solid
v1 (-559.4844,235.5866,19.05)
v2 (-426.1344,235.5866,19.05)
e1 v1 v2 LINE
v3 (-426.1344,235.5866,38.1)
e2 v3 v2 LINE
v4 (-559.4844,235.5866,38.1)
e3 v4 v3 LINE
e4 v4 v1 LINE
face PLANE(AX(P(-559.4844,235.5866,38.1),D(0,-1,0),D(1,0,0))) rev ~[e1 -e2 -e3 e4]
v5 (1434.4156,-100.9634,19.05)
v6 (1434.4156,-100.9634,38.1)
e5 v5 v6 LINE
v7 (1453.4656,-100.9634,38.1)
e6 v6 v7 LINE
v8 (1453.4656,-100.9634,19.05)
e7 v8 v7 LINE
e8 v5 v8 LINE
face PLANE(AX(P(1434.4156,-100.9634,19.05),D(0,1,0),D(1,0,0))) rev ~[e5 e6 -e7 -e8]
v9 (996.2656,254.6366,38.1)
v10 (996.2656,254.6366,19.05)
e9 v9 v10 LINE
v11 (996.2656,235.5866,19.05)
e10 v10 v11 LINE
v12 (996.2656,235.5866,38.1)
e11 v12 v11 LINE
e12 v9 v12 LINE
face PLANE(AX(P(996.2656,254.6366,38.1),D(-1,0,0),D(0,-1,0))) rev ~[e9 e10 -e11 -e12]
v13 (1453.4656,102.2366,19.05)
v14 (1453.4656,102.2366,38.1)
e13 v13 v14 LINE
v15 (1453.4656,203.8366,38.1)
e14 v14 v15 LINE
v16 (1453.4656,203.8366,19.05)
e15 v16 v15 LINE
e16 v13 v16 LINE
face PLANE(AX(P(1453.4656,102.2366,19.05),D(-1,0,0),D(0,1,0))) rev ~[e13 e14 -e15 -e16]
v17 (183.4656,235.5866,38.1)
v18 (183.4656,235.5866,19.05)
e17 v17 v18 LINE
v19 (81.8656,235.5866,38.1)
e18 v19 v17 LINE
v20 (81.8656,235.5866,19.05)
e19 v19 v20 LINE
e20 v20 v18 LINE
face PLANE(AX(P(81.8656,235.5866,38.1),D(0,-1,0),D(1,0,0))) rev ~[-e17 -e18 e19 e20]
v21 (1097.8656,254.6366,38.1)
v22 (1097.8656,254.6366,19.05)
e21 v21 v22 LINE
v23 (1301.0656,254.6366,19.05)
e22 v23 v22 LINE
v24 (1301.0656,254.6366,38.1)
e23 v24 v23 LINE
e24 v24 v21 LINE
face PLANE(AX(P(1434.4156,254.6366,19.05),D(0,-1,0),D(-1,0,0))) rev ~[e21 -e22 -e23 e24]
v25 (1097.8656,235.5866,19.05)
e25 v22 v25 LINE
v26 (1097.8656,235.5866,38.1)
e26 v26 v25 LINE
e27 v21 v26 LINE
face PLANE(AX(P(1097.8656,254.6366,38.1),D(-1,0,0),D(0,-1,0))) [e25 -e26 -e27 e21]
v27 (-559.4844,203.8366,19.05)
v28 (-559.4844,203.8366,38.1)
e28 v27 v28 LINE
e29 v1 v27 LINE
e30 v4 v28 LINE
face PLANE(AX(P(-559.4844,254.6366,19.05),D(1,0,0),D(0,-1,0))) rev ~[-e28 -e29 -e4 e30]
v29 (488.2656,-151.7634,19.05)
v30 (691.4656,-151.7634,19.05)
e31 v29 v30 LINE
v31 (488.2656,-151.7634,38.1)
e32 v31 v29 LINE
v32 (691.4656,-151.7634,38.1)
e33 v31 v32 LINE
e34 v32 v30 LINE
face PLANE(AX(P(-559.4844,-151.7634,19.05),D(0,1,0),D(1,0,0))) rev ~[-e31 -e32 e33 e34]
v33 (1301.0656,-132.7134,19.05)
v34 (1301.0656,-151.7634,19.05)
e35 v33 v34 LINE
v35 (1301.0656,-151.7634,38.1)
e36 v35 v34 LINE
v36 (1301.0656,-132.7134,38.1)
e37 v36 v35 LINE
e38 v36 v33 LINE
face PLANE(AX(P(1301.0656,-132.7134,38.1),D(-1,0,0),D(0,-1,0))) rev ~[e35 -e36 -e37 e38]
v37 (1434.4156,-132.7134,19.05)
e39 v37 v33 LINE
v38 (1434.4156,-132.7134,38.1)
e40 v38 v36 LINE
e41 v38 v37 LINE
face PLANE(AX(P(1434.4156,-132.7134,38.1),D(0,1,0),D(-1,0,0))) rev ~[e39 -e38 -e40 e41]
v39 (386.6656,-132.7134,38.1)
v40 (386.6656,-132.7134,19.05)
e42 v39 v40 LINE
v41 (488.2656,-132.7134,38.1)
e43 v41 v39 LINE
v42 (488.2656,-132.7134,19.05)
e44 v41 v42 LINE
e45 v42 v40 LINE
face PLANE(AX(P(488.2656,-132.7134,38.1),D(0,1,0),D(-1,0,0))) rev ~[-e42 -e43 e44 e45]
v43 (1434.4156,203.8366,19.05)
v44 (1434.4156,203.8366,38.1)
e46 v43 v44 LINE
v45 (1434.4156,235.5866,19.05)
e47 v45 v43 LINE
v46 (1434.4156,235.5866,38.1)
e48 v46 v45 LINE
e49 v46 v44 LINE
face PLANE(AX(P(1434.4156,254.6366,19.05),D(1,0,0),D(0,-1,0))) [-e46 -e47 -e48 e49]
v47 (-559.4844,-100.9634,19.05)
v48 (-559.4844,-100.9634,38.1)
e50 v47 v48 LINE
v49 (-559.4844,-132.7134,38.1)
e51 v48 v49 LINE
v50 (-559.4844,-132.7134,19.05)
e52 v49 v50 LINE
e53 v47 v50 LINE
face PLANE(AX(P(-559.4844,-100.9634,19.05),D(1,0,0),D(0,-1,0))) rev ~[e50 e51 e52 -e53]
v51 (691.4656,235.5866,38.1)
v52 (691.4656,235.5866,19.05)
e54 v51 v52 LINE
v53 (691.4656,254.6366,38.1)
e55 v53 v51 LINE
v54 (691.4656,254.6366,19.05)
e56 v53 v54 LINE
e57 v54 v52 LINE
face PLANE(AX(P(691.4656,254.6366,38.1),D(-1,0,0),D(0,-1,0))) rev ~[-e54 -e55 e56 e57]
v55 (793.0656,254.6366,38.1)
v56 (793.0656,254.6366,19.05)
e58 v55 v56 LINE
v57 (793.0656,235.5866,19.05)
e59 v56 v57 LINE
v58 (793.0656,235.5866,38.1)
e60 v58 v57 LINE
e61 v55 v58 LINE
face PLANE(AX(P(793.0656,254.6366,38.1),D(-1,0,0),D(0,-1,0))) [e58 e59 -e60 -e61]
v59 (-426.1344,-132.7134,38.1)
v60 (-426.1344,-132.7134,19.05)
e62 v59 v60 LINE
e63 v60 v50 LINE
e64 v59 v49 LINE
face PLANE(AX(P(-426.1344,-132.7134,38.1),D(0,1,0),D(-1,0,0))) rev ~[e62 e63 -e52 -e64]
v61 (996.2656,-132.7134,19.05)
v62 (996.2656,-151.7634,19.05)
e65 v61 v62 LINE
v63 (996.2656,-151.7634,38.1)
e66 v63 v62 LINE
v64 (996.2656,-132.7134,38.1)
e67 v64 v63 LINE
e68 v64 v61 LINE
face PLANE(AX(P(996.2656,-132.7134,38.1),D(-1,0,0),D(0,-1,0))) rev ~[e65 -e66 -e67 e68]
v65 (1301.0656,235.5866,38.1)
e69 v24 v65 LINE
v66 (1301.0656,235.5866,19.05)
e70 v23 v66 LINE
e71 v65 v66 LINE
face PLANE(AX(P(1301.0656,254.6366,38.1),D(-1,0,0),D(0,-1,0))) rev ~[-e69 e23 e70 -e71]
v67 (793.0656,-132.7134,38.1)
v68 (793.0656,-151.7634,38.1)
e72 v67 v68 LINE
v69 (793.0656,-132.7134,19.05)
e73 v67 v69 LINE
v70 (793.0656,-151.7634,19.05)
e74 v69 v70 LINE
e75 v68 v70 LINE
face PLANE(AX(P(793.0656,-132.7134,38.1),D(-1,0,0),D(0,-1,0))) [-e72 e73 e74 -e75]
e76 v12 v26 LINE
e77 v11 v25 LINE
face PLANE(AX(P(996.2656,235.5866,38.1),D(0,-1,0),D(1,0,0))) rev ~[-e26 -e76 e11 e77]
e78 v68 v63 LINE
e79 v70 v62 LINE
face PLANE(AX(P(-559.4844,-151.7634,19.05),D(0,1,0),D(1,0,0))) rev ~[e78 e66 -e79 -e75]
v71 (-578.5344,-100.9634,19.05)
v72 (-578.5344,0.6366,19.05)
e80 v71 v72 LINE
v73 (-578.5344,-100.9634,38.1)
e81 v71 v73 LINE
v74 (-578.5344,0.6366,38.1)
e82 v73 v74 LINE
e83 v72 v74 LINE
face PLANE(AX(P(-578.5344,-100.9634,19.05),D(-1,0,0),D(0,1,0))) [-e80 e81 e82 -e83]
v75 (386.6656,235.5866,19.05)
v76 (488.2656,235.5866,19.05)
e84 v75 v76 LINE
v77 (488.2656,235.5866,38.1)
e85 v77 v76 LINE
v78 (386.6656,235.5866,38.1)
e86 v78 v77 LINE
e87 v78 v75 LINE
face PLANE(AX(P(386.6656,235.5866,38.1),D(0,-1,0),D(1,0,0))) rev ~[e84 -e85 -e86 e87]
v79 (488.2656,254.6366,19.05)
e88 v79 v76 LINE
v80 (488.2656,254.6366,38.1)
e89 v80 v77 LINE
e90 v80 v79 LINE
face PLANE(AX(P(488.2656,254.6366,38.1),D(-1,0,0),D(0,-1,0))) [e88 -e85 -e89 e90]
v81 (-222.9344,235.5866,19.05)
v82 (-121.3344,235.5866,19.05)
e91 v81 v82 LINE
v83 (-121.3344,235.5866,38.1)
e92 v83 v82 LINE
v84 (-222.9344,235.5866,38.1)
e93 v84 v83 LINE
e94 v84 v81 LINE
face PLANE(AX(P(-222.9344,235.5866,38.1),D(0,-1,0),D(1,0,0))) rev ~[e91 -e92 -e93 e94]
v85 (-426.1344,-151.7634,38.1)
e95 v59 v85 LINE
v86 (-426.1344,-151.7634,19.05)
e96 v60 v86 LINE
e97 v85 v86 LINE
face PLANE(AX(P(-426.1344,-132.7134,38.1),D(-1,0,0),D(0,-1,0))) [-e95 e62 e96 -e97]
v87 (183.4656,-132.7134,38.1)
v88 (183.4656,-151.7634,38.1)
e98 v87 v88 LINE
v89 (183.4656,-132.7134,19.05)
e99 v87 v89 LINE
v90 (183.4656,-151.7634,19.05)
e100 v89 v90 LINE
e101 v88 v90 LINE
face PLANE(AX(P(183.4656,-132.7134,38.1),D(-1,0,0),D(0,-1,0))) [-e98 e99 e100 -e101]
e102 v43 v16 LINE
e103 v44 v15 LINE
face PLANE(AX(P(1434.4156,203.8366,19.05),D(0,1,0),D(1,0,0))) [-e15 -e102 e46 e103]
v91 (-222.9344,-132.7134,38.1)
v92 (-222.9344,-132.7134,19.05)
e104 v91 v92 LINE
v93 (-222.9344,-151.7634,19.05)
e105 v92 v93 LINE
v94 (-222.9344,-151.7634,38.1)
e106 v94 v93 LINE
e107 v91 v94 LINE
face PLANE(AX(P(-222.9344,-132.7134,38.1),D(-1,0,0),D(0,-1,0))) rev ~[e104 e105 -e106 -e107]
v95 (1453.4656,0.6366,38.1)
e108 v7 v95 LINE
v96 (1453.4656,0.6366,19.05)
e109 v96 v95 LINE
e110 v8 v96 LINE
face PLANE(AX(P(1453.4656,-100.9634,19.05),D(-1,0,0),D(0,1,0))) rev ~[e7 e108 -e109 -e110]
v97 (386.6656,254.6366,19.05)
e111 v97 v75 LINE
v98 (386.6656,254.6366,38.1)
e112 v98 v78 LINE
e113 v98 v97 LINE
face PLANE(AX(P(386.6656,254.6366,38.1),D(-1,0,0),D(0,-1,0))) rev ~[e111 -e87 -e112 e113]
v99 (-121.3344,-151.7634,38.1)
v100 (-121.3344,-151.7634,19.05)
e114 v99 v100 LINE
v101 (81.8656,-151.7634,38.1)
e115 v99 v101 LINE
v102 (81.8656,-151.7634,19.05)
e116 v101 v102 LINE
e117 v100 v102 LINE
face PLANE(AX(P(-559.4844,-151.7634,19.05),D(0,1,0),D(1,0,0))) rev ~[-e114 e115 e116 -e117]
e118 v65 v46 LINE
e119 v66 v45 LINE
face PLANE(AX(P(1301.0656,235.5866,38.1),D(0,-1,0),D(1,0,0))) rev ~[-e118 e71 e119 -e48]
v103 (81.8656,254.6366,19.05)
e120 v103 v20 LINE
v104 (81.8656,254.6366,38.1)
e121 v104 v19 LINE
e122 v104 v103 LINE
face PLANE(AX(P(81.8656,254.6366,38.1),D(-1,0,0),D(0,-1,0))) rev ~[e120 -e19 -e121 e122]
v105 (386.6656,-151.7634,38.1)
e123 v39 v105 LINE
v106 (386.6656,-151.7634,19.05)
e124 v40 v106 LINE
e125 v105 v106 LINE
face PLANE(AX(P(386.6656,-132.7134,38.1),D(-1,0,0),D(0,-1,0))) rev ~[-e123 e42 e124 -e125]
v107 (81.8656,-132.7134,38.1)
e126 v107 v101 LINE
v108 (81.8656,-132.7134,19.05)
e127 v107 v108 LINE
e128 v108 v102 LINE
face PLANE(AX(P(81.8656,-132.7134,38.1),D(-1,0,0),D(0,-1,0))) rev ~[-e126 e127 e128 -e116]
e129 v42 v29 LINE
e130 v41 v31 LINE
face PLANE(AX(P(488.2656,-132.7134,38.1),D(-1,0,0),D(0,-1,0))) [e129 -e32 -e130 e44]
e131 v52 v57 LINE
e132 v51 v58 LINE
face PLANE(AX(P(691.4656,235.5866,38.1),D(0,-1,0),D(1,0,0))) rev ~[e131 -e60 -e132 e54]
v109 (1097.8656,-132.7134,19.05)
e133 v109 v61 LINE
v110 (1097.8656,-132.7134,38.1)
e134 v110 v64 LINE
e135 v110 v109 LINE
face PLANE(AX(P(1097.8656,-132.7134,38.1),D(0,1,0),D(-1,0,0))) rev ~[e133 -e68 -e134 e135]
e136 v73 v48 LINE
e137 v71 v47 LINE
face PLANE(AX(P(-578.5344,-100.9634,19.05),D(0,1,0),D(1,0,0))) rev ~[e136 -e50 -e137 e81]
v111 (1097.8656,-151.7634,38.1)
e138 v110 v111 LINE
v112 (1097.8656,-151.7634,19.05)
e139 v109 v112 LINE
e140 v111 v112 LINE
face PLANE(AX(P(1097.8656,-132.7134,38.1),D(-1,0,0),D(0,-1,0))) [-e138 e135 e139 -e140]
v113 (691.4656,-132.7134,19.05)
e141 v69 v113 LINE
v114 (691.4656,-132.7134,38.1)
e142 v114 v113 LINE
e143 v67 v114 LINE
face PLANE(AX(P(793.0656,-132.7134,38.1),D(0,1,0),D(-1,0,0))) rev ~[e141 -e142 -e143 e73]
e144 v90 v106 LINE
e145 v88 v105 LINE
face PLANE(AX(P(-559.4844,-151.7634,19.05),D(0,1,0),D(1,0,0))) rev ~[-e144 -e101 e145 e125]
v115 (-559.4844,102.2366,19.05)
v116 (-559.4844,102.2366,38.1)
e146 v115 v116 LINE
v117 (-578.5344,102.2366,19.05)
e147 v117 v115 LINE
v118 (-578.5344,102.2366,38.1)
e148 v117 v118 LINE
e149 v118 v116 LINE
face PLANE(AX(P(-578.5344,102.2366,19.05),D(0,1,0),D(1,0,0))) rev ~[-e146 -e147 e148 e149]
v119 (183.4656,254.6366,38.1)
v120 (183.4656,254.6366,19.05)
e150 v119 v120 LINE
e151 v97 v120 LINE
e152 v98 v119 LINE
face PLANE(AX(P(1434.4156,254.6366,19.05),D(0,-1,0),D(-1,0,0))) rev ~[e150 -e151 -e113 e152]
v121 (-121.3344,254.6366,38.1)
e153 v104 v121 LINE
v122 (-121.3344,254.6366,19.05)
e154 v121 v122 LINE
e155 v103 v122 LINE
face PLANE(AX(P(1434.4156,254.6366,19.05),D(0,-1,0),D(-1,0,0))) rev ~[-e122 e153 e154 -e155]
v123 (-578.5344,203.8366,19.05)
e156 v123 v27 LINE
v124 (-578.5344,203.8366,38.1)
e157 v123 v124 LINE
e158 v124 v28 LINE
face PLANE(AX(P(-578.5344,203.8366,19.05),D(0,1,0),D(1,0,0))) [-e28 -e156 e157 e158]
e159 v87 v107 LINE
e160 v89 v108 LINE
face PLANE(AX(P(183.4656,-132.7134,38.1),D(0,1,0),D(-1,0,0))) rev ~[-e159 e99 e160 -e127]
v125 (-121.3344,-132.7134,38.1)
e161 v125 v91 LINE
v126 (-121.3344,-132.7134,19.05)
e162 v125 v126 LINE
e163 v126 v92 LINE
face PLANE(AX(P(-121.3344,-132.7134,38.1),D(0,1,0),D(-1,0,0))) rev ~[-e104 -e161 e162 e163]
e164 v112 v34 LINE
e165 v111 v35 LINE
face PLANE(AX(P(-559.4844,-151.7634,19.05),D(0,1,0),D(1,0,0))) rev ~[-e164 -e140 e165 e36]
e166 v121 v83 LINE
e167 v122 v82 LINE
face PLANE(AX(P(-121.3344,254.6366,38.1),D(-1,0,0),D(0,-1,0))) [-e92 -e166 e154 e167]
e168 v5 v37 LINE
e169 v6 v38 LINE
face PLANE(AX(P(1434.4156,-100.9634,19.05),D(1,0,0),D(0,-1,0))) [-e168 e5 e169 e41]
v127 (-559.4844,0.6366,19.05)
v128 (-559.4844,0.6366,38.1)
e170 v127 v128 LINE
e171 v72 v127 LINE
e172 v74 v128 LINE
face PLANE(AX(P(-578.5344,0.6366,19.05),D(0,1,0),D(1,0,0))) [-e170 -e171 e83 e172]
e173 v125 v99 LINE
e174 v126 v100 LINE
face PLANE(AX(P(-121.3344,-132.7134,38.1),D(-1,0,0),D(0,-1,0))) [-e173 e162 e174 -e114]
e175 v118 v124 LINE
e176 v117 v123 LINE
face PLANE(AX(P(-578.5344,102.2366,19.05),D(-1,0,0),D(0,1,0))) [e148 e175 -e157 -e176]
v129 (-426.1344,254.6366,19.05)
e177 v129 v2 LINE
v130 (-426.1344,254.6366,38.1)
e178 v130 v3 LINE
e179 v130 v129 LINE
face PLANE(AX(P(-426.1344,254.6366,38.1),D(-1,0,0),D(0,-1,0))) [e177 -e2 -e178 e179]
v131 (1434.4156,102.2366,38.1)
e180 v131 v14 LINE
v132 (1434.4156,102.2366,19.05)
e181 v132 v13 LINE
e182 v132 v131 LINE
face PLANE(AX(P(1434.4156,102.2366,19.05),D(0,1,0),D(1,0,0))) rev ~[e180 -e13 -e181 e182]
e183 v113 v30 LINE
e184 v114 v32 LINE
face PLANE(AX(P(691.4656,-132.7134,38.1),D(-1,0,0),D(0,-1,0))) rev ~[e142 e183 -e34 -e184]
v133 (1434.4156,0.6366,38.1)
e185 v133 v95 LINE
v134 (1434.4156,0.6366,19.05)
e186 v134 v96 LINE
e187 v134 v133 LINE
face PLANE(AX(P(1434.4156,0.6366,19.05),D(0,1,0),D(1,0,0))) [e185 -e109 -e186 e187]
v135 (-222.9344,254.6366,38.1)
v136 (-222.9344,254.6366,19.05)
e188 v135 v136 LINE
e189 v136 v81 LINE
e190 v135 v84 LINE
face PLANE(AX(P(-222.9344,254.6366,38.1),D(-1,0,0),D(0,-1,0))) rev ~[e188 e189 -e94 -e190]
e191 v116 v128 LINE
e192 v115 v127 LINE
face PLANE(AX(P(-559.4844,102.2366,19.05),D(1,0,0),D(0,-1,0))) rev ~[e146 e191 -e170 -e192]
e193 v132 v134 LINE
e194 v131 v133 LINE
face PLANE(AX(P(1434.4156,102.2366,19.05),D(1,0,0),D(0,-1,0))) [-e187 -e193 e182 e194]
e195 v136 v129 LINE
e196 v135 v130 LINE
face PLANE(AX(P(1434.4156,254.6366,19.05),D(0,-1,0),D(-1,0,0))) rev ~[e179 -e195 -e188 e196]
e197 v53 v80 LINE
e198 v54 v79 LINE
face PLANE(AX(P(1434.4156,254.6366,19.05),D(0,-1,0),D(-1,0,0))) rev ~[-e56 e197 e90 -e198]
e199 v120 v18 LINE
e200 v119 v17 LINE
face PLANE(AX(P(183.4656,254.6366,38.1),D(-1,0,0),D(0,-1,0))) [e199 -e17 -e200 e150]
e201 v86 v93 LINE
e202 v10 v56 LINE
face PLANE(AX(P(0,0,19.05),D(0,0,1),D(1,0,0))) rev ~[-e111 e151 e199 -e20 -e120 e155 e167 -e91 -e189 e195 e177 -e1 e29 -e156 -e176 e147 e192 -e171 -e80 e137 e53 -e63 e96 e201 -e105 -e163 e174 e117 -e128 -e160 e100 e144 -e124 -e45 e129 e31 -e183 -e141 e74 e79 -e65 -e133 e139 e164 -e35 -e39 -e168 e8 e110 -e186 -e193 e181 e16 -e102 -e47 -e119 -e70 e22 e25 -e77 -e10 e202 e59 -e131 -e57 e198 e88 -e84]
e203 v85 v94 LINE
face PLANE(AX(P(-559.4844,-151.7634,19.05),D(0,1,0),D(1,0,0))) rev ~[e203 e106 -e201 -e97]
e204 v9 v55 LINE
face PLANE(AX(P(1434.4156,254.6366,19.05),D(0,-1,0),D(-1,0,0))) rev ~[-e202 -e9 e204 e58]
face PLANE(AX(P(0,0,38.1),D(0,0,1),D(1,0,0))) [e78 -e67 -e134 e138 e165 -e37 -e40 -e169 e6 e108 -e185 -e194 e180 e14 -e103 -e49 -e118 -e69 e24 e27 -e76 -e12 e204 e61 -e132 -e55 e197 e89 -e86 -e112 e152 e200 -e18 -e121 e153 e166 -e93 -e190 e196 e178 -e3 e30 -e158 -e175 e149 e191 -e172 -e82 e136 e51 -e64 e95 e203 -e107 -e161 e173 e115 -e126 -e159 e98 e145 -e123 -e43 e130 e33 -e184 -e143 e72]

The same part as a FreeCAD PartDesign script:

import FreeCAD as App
import Part
import Sketcher
Q = App.Units.Quantity

doc = App.newDocument("Part")
body = doc.addObject("PartDesign::Body", "Body")

# Sketch on XY plane
sketch1 = body.newObject("Sketcher::SketchObject", "Sketch")
sketch1.AttachmentSupport = (doc.getObject("XY_Plane"), [""])
sketch1.MapMode = "FlatFace"
sketch1.AttachmentOffset = App.Placement(App.Vector(0, 0, 0.75 * 25.4), App.Rotation())
sketch1.addGeometry(Part.LineSegment(App.Vector(1434, 204, 0), App.Vector(1434, 255, 0)), False)
sketch1.addGeometry(Part.LineSegment(App.Vector(1434, 255, 0), App.Vector(-559, 255, 0)), False)
sketch1.addGeometry(Part.LineSegment(App.Vector(-559, 255, 0), App.Vector(-559, 204, 0)), False)
sketch1.addGeometry(Part.LineSegment(App.Vector(-559, 204, 0), App.Vector(-579, 204, 0)), False)
sketch1.addGeometry(Part.LineSegment(App.Vector(-579, 204, 0), App.Vector(-579, 102, 0)), False)
sketch1.addGeometry(Part.LineSegment(App.Vector(-579, 102, 0), App.Vector(-559, 102, 0)), False)
sketch1.addGeometry(Part.LineSegment(App.Vector(-559, 102, 0), App.Vector(-559, 1, 0)), False)
sketch1.addGeometry(Part.LineSegment(App.Vector(-559, 1, 0), App.Vector(-579, 1, 0)), False)
sketch1.addGeometry(Part.LineSegment(App.Vector(-579, 1, 0), App.Vector(-579, -101, 0)), False)
sketch1.addGeometry(Part.LineSegment(App.Vector(-579, -101, 0), App.Vector(-559, -101, 0)), False)
sketch1.addGeometry(Part.LineSegment(App.Vector(-559, -101, 0), App.Vector(-559, -152, 0)), False)
sketch1.addGeometry(Part.LineSegment(App.Vector(-559, -152, 0), App.Vector(1434, -152, 0)), False)
sketch1.addGeometry(Part.LineSegment(App.Vector(1434, -152, 0), App.Vector(1434, -101, 0)), False)
sketch1.addGeometry(Part.LineSegment(App.Vector(1434, -101, 0), App.Vector(1453, -101, 0)), False)
sketch1.addGeometry(Part.LineSegment(App.Vector(1453, -101, 0), App.Vector(1453, 1, 0)), False)
sketch1.addGeometry(Part.LineSegment(App.Vector(1453, 1, 0), App.Vector(1434, 1, 0)), False)
sketch1.addGeometry(Part.LineSegment(App.Vector(1434, 1, 0), App.Vector(1434, 102, 0)), False)
sketch1.addGeometry(Part.LineSegment(App.Vector(1434, 102, 0), App.Vector(1453, 102, 0)), False)
sketch1.addGeometry(Part.LineSegment(App.Vector(1453, 102, 0), App.Vector(1453, 204, 0)), False)
sketch1.addGeometry(Part.LineSegment(App.Vector(1453, 204, 0), App.Vector(1434, 204, 0)), False)
sketch1.addConstraint(Sketcher.Constraint("Coincident", 0, 2, 1, 1))
sketch1.addConstraint(Sketcher.Constraint("Coincident", 1, 2, 2, 1))
sketch1.addConstraint(Sketcher.Constraint("Coincident", 2, 2, 3, 1))
sketch1.addConstraint(Sketcher.Constraint("Coincident", 3, 2, 4, 1))
sketch1.addConstraint(Sketcher.Constraint("Coincident", 4, 2, 5, 1))
sketch1.addConstraint(Sketcher.Constraint("Coincident", 5, 2, 6, 1))
sketch1.addConstraint(Sketcher.Constraint("Coincident", 6, 2, 7, 1))
sketch1.addConstraint(Sketcher.Constraint("Coincident", 7, 2, 8, 1))
sketch1.addConstraint(Sketcher.Constraint("Coincident", 8, 2, 9, 1))
sketch1.addConstraint(Sketcher.Constraint("Coincident", 9, 2, 10, 1))
sketch1.addConstraint(Sketcher.Constraint("Coincident", 10, 2, 11, 1))
sketch1.addConstraint(Sketcher.Constraint("Coincident", 11, 2, 12, 1))
sketch1.addConstraint(Sketcher.Constraint("Coincident", 12, 2, 13, 1))
sketch1.addConstraint(Sketcher.Constraint("Coincident", 13, 2, 14, 1))
sketch1.addConstraint(Sketcher.Constraint("Coincident", 14, 2, 15, 1))
sketch1.addConstraint(Sketcher.Constraint("Coincident", 15, 2, 16, 1))
sketch1.addConstraint(Sketcher.Constraint("Coincident", 16, 2, 17, 1))
sketch1.addConstraint(Sketcher.Constraint("Coincident", 17, 2, 18, 1))
sketch1.addConstraint(Sketcher.Constraint("Coincident", 18, 2, 19, 1))
sketch1.addConstraint(Sketcher.Constraint("Coincident", 19, 2, 0, 1))
sketch1.addConstraint(Sketcher.Constraint("Vertical", 0))
sketch1.addConstraint(Sketcher.Constraint("Horizontal", 1))
sketch1.addConstraint(Sketcher.Constraint("Vertical", 2))
sketch1.addConstraint(Sketcher.Constraint("Horizontal", 3))
sketch1.addConstraint(Sketcher.Constraint("Vertical", 4))
sketch1.addConstraint(Sketcher.Constraint("Horizontal", 5))
sketch1.addConstraint(Sketcher.Constraint("Vertical", 6))
sketch1.addConstraint(Sketcher.Constraint("Horizontal", 7))
sketch1.addConstraint(Sketcher.Constraint("Vertical", 8))
sketch1.addConstraint(Sketcher.Constraint("Horizontal", 9))
sketch1.addConstraint(Sketcher.Constraint("Vertical", 10))
sketch1.addConstraint(Sketcher.Constraint("Horizontal", 11))
sketch1.addConstraint(Sketcher.Constraint("Vertical", 12))
sketch1.addConstraint(Sketcher.Constraint("Horizontal", 13))
sketch1.addConstraint(Sketcher.Constraint("Vertical", 14))
sketch1.addConstraint(Sketcher.Constraint("Horizontal", 15))
sketch1.addConstraint(Sketcher.Constraint("Vertical", 16))
sketch1.addConstraint(Sketcher.Constraint("Horizontal", 17))
sketch1.addConstraint(Sketcher.Constraint("Vertical", 18))
sketch1.addConstraint(Sketcher.Constraint("Horizontal", 19))
sketch1.addConstraint(Sketcher.Constraint("Horizontal", 9, 2, 12, 2))
sketch1.addConstraint(Sketcher.Constraint("Horizontal", 7, 2, 14, 2))
sketch1.addConstraint(Sketcher.Constraint("Horizontal", 5, 2, 16, 2))
sketch1.addConstraint(Sketcher.Constraint("Horizontal", 3, 2, 18, 2))
sketch1.addConstraint(Sketcher.Constraint("Vertical", 2, 2, 5, 2))
sketch1.addConstraint(Sketcher.Constraint("Vertical", 4, 2, 7, 2))
sketch1.addConstraint(Sketcher.Constraint("Vertical", 6, 2, 9, 2))
sketch1.addConstraint(Sketcher.Constraint("Vertical", 0, 2, 11, 2))
sketch1.addConstraint(Sketcher.Constraint("Vertical", 12, 2, 15, 2))
sketch1.addConstraint(Sketcher.Constraint("Vertical", 14, 2, 17, 2))
sketch1.addConstraint(Sketcher.Constraint("Equal", 9, 13))
sketch1.addConstraint(Sketcher.Constraint("Equal", 4, 6))
sketch1.addConstraint(Sketcher.Constraint("Equal", 6, 8))
sketch1.addConstraint(Sketcher.Constraint("Equal", 2, 10))
sketch1.addConstraint(Sketcher.Constraint("DistanceY", 0, 1, 0, 2, Q("2 in")))
sketch1.addConstraint(Sketcher.Constraint("DistanceY", 4, 2, 4, 1, Q("4 in")))
sketch1.addConstraint(Sketcher.Constraint("DistanceX", 1, 2, 1, 1, Q("78.5 in")))
sketch1.addConstraint(Sketcher.Constraint("DistanceX", 3, 2, 3, 1, Q("0.75 in")))
sketch1.addConstraint(Sketcher.Constraint("DistanceX", -1, 1, 0, 2, 1434.4156))
sketch1.addConstraint(Sketcher.Constraint("DistanceY", -1, 1, 0, 2, 254.6366))
pad1 = body.newObject("PartDesign::Pad", "Pad")
pad1.Profile = sketch1
pad1.Length = Q("0.75 in")

# Sketch on XY plane
sketch2 = body.newObject("Sketcher::SketchObject", "Sketch001")
sketch2.AttachmentSupport = (doc.getObject("XY_Plane"), [""])
sketch2.MapMode = "FlatFace"
sketch2.AttachmentOffset = App.Placement(App.Vector(0, 0, 1.5 * 25.4), App.Rotation())
sketch2.addGeometry(Part.LineSegment(App.Vector(1434, 236, 0), App.Vector(1434, 255, 0)), False)
sketch2.addGeometry(Part.LineSegment(App.Vector(1434, 255, 0), App.Vector(1301, 255, 0)), False)
sketch2.addGeometry(Part.LineSegment(App.Vector(1301, 255, 0), App.Vector(1301, 236, 0)), False)
sketch2.addGeometry(Part.LineSegment(App.Vector(1301, 236, 0), App.Vector(1434, 236, 0)), False)
sketch2.addGeometry(Part.LineSegment(App.Vector(-426, 236, 0), App.Vector(-426, 255, 0)), False)
sketch2.addGeometry(Part.LineSegment(App.Vector(-426, 255, 0), App.Vector(-559, 255, 0)), False)
sketch2.addGeometry(Part.LineSegment(App.Vector(-559, 255, 0), App.Vector(-559, 236, 0)), False)
sketch2.addGeometry(Part.LineSegment(App.Vector(-559, 236, 0), App.Vector(-426, 236, 0)), False)
sketch2.addGeometry(Part.LineSegment(App.Vector(-121, 236, 0), App.Vector(-121, 255, 0)), False)
sketch2.addGeometry(Part.LineSegment(App.Vector(-121, 255, 0), App.Vector(-223, 255, 0)), False)
sketch2.addGeometry(Part.LineSegment(App.Vector(-223, 255, 0), App.Vector(-223, 236, 0)), False)
sketch2.addGeometry(Part.LineSegment(App.Vector(-223, 236, 0), App.Vector(-121, 236, 0)), False)
sketch2.addGeometry(Part.LineSegment(App.Vector(183, 236, 0), App.Vector(183, 255, 0)), False)
sketch2.addGeometry(Part.LineSegment(App.Vector(183, 255, 0), App.Vector(82, 255, 0)), False)
sketch2.addGeometry(Part.LineSegment(App.Vector(82, 255, 0), App.Vector(82, 236, 0)), False)
sketch2.addGeometry(Part.LineSegment(App.Vector(82, 236, 0), App.Vector(183, 236, 0)), False)
sketch2.addGeometry(Part.LineSegment(App.Vector(488, 236, 0), App.Vector(488, 255, 0)), False)
sketch2.addGeometry(Part.LineSegment(App.Vector(488, 255, 0), App.Vector(387, 255, 0)), False)
sketch2.addGeometry(Part.LineSegment(App.Vector(387, 255, 0), App.Vector(387, 236, 0)), False)
sketch2.addGeometry(Part.LineSegment(App.Vector(387, 236, 0), App.Vector(488, 236, 0)), False)
sketch2.addGeometry(Part.LineSegment(App.Vector(793, 236, 0), App.Vector(793, 255, 0)), False)
sketch2.addGeometry(Part.LineSegment(App.Vector(793, 255, 0), App.Vector(691, 255, 0)), False)
sketch2.addGeometry(Part.LineSegment(App.Vector(691, 255, 0), App.Vector(691, 236, 0)), False)
sketch2.addGeometry(Part.LineSegment(App.Vector(691, 236, 0), App.Vector(793, 236, 0)), False)
sketch2.addGeometry(Part.LineSegment(App.Vector(1098, 236, 0), App.Vector(1098, 255, 0)), False)
sketch2.addGeometry(Part.LineSegment(App.Vector(1098, 255, 0), App.Vector(996, 255, 0)), False)
sketch2.addGeometry(Part.LineSegment(App.Vector(996, 255, 0), App.Vector(996, 236, 0)), False)
sketch2.addGeometry(Part.LineSegment(App.Vector(996, 236, 0), App.Vector(1098, 236, 0)), False)
sketch2.addGeometry(Part.LineSegment(App.Vector(-559, -133, 0), App.Vector(-559, -152, 0)), False)
sketch2.addGeometry(Part.LineSegment(App.Vector(-559, -152, 0), App.Vector(-426, -152, 0)), False)
sketch2.addGeometry(Part.LineSegment(App.Vector(-426, -152, 0), App.Vector(-426, -133, 0)), False)
sketch2.addGeometry(Part.LineSegment(App.Vector(-426, -133, 0), App.Vector(-559, -133, 0)), False)
sketch2.addGeometry(Part.LineSegment(App.Vector(1301, -133, 0), App.Vector(1301, -152, 0)), False)
sketch2.addGeometry(Part.LineSegment(App.Vector(1301, -152, 0), App.Vector(1434, -152, 0)), False)
sketch2.addGeometry(Part.LineSegment(App.Vector(1434, -152, 0), App.Vector(1434, -133, 0)), False)
sketch2.addGeometry(Part.LineSegment(App.Vector(1434, -133, 0), App.Vector(1301, -133, 0)), False)
sketch2.addGeometry(Part.LineSegment(App.Vector(996, -133, 0), App.Vector(996, -152, 0)), False)
sketch2.addGeometry(Part.LineSegment(App.Vector(996, -152, 0), App.Vector(1098, -152, 0)), False)
sketch2.addGeometry(Part.LineSegment(App.Vector(1098, -152, 0), App.Vector(1098, -133, 0)), False)
sketch2.addGeometry(Part.LineSegment(App.Vector(1098, -133, 0), App.Vector(996, -133, 0)), False)
sketch2.addGeometry(Part.LineSegment(App.Vector(691, -133, 0), App.Vector(691, -152, 0)), False)
sketch2.addGeometry(Part.LineSegment(App.Vector(691, -152, 0), App.Vector(793, -152, 0)), False)
sketch2.addGeometry(Part.LineSegment(App.Vector(793, -152, 0), App.Vector(793, -133, 0)), False)
sketch2.addGeometry(Part.LineSegment(App.Vector(793, -133, 0), App.Vector(691, -133, 0)), False)
sketch2.addGeometry(Part.LineSegment(App.Vector(387, -133, 0), App.Vector(387, -152, 0)), False)
sketch2.addGeometry(Part.LineSegment(App.Vector(387, -152, 0), App.Vector(488, -152, 0)), False)
sketch2.addGeometry(Part.LineSegment(App.Vector(488, -152, 0), App.Vector(488, -133, 0)), False)
sketch2.addGeometry(Part.LineSegment(App.Vector(488, -133, 0), App.Vector(387, -133, 0)), False)
sketch2.addGeometry(Part.LineSegment(App.Vector(82, -133, 0), App.Vector(82, -152, 0)), False)
sketch2.addGeometry(Part.LineSegment(App.Vector(82, -152, 0), App.Vector(183, -152, 0)), False)
sketch2.addGeometry(Part.LineSegment(App.Vector(183, -152, 0), App.Vector(183, -133, 0)), False)
sketch2.addGeometry(Part.LineSegment(App.Vector(183, -133, 0), App.Vector(82, -133, 0)), False)
sketch2.addGeometry(Part.LineSegment(App.Vector(-223, -133, 0), App.Vector(-223, -152, 0)), False)
sketch2.addGeometry(Part.LineSegment(App.Vector(-223, -152, 0), App.Vector(-121, -152, 0)), False)
sketch2.addGeometry(Part.LineSegment(App.Vector(-121, -152, 0), App.Vector(-121, -133, 0)), False)
sketch2.addGeometry(Part.LineSegment(App.Vector(-121, -133, 0), App.Vector(-223, -133, 0)), False)
sketch2.addConstraint(Sketcher.Constraint("Coincident", 0, 2, 1, 1))
sketch2.addConstraint(Sketcher.Constraint("Coincident", 1, 2, 2, 1))
sketch2.addConstraint(Sketcher.Constraint("Coincident", 2, 2, 3, 1))
sketch2.addConstraint(Sketcher.Constraint("Coincident", 3, 2, 0, 1))
sketch2.addConstraint(Sketcher.Constraint("Coincident", 4, 2, 5, 1))
sketch2.addConstraint(Sketcher.Constraint("Coincident", 5, 2, 6, 1))
sketch2.addConstraint(Sketcher.Constraint("Coincident", 6, 2, 7, 1))
sketch2.addConstraint(Sketcher.Constraint("Coincident", 7, 2, 4, 1))
sketch2.addConstraint(Sketcher.Constraint("Coincident", 8, 2, 9, 1))
sketch2.addConstraint(Sketcher.Constraint("Coincident", 9, 2, 10, 1))
sketch2.addConstraint(Sketcher.Constraint("Coincident", 10, 2, 11, 1))
sketch2.addConstraint(Sketcher.Constraint("Coincident", 11, 2, 8, 1))
sketch2.addConstraint(Sketcher.Constraint("Coincident", 12, 2, 13, 1))
sketch2.addConstraint(Sketcher.Constraint("Coincident", 13, 2, 14, 1))
sketch2.addConstraint(Sketcher.Constraint("Coincident", 14, 2, 15, 1))
sketch2.addConstraint(Sketcher.Constraint("Coincident", 15, 2, 12, 1))
sketch2.addConstraint(Sketcher.Constraint("Coincident", 16, 2, 17, 1))
sketch2.addConstraint(Sketcher.Constraint("Coincident", 17, 2, 18, 1))
sketch2.addConstraint(Sketcher.Constraint("Coincident", 18, 2, 19, 1))
sketch2.addConstraint(Sketcher.Constraint("Coincident", 19, 2, 16, 1))
sketch2.addConstraint(Sketcher.Constraint("Coincident", 20, 2, 21, 1))
sketch2.addConstraint(Sketcher.Constraint("Coincident", 21, 2, 22, 1))
sketch2.addConstraint(Sketcher.Constraint("Coincident", 22, 2, 23, 1))
sketch2.addConstraint(Sketcher.Constraint("Coincident", 23, 2, 20, 1))
sketch2.addConstraint(Sketcher.Constraint("Coincident", 24, 2, 25, 1))
sketch2.addConstraint(Sketcher.Constraint("Coincident", 25, 2, 26, 1))
sketch2.addConstraint(Sketcher.Constraint("Coincident", 26, 2, 27, 1))
sketch2.addConstraint(Sketcher.Constraint("Coincident", 27, 2, 24, 1))
sketch2.addConstraint(Sketcher.Constraint("Coincident", 28, 2, 29, 1))
sketch2.addConstraint(Sketcher.Constraint("Coincident", 29, 2, 30, 1))
sketch2.addConstraint(Sketcher.Constraint("Coincident", 30, 2, 31, 1))
sketch2.addConstraint(Sketcher.Constraint("Coincident", 31, 2, 28, 1))
sketch2.addConstraint(Sketcher.Constraint("Coincident", 32, 2, 33, 1))
sketch2.addConstraint(Sketcher.Constraint("Coincident", 33, 2, 34, 1))
sketch2.addConstraint(Sketcher.Constraint("Coincident", 34, 2, 35, 1))
sketch2.addConstraint(Sketcher.Constraint("Coincident", 35, 2, 32, 1))
sketch2.addConstraint(Sketcher.Constraint("Coincident", 36, 2, 37, 1))
sketch2.addConstraint(Sketcher.Constraint("Coincident", 37, 2, 38, 1))
sketch2.addConstraint(Sketcher.Constraint("Coincident", 38, 2, 39, 1))
sketch2.addConstraint(Sketcher.Constraint("Coincident", 39, 2, 36, 1))
sketch2.addConstraint(Sketcher.Constraint("Coincident", 40, 2, 41, 1))
sketch2.addConstraint(Sketcher.Constraint("Coincident", 41, 2, 42, 1))
sketch2.addConstraint(Sketcher.Constraint("Coincident", 42, 2, 43, 1))
sketch2.addConstraint(Sketcher.Constraint("Coincident", 43, 2, 40, 1))
sketch2.addConstraint(Sketcher.Constraint("Coincident", 44, 2, 45, 1))
sketch2.addConstraint(Sketcher.Constraint("Coincident", 45, 2, 46, 1))
sketch2.addConstraint(Sketcher.Constraint("Coincident", 46, 2, 47, 1))
sketch2.addConstraint(Sketcher.Constraint("Coincident", 47, 2, 44, 1))
sketch2.addConstraint(Sketcher.Constraint("Coincident", 48, 2, 49, 1))
sketch2.addConstraint(Sketcher.Constraint("Coincident", 49, 2, 50, 1))
sketch2.addConstraint(Sketcher.Constraint("Coincident", 50, 2, 51, 1))
sketch2.addConstraint(Sketcher.Constraint("Coincident", 51, 2, 48, 1))
sketch2.addConstraint(Sketcher.Constraint("Coincident", 52, 2, 53, 1))
sketch2.addConstraint(Sketcher.Constraint("Coincident", 53, 2, 54, 1))
sketch2.addConstraint(Sketcher.Constraint("Coincident", 54, 2, 55, 1))
sketch2.addConstraint(Sketcher.Constraint("Coincident", 55, 2, 52, 1))
sketch2.addConstraint(Sketcher.Constraint("Vertical", 0))
sketch2.addConstraint(Sketcher.Constraint("Horizontal", 1))
sketch2.addConstraint(Sketcher.Constraint("Vertical", 2))
sketch2.addConstraint(Sketcher.Constraint("Horizontal", 3))
sketch2.addConstraint(Sketcher.Constraint("Vertical", 4))
sketch2.addConstraint(Sketcher.Constraint("Horizontal", 5))
sketch2.addConstraint(Sketcher.Constraint("Vertical", 6))
sketch2.addConstraint(Sketcher.Constraint("Horizontal", 7))
sketch2.addConstraint(Sketcher.Constraint("Vertical", 8))
sketch2.addConstraint(Sketcher.Constraint("Horizontal", 9))
sketch2.addConstraint(Sketcher.Constraint("Vertical", 10))
sketch2.addConstraint(Sketcher.Constraint("Horizontal", 11))
sketch2.addConstraint(Sketcher.Constraint("Vertical", 12))
sketch2.addConstraint(Sketcher.Constraint("Horizontal", 13))
sketch2.addConstraint(Sketcher.Constraint("Vertical", 14))
sketch2.addConstraint(Sketcher.Constraint("Horizontal", 15))
sketch2.addConstraint(Sketcher.Constraint("Vertical", 16))
sketch2.addConstraint(Sketcher.Constraint("Horizontal", 17))
sketch2.addConstraint(Sketcher.Constraint("Vertical", 18))
sketch2.addConstraint(Sketcher.Constraint("Horizontal", 19))
sketch2.addConstraint(Sketcher.Constraint("Vertical", 20))
sketch2.addConstraint(Sketcher.Constraint("Horizontal", 21))
sketch2.addConstraint(Sketcher.Constraint("Vertical", 22))
sketch2.addConstraint(Sketcher.Constraint("Horizontal", 23))
sketch2.addConstraint(Sketcher.Constraint("Vertical", 24))
sketch2.addConstraint(Sketcher.Constraint("Horizontal", 25))
sketch2.addConstraint(Sketcher.Constraint("Vertical", 26))
sketch2.addConstraint(Sketcher.Constraint("Horizontal", 27))
sketch2.addConstraint(Sketcher.Constraint("Vertical", 28))
sketch2.addConstraint(Sketcher.Constraint("Horizontal", 29))
sketch2.addConstraint(Sketcher.Constraint("Vertical", 30))
sketch2.addConstraint(Sketcher.Constraint("Horizontal", 31))
sketch2.addConstraint(Sketcher.Constraint("Vertical", 32))
sketch2.addConstraint(Sketcher.Constraint("Horizontal", 33))
sketch2.addConstraint(Sketcher.Constraint("Vertical", 34))
sketch2.addConstraint(Sketcher.Constraint("Horizontal", 35))
sketch2.addConstraint(Sketcher.Constraint("Vertical", 36))
sketch2.addConstraint(Sketcher.Constraint("Horizontal", 37))
sketch2.addConstraint(Sketcher.Constraint("Vertical", 38))
sketch2.addConstraint(Sketcher.Constraint("Horizontal", 39))
sketch2.addConstraint(Sketcher.Constraint("Vertical", 40))
sketch2.addConstraint(Sketcher.Constraint("Horizontal", 41))
sketch2.addConstraint(Sketcher.Constraint("Vertical", 42))
sketch2.addConstraint(Sketcher.Constraint("Horizontal", 43))
sketch2.addConstraint(Sketcher.Constraint("Vertical", 44))
sketch2.addConstraint(Sketcher.Constraint("Horizontal", 45))
sketch2.addConstraint(Sketcher.Constraint("Vertical", 46))
sketch2.addConstraint(Sketcher.Constraint("Horizontal", 47))
sketch2.addConstraint(Sketcher.Constraint("Vertical", 48))
sketch2.addConstraint(Sketcher.Constraint("Horizontal", 49))
sketch2.addConstraint(Sketcher.Constraint("Vertical", 50))
sketch2.addConstraint(Sketcher.Constraint("Horizontal", 51))
sketch2.addConstraint(Sketcher.Constraint("Vertical", 52))
sketch2.addConstraint(Sketcher.Constraint("Horizontal", 53))
sketch2.addConstraint(Sketcher.Constraint("Vertical", 54))
sketch2.addConstraint(Sketcher.Constraint("Horizontal", 55))
sketch2.addConstraint(Sketcher.Constraint("Horizontal", 1, 2, 4, 2))
sketch2.addConstraint(Sketcher.Constraint("Horizontal", 3, 2, 6, 2))
sketch2.addConstraint(Sketcher.Constraint("Horizontal", 5, 2, 8, 2))
sketch2.addConstraint(Sketcher.Constraint("Horizontal", 7, 2, 10, 2))
sketch2.addConstraint(Sketcher.Constraint("Horizontal", 9, 2, 12, 2))
sketch2.addConstraint(Sketcher.Constraint("Horizontal", 11, 2, 14, 2))
sketch2.addConstraint(Sketcher.Constraint("Horizontal", 13, 2, 16, 2))
sketch2.addConstraint(Sketcher.Constraint("Horizontal", 15, 2, 18, 2))
sketch2.addConstraint(Sketcher.Constraint("Horizontal", 17, 2, 20, 2))
sketch2.addConstraint(Sketcher.Constraint("Horizontal", 19, 2, 22, 2))
sketch2.addConstraint(Sketcher.Constraint("Horizontal", 21, 2, 24, 2))
sketch2.addConstraint(Sketcher.Constraint("Horizontal", 23, 2, 26, 2))
sketch2.addConstraint(Sketcher.Constraint("Horizontal", 29, 2, 32, 2))
sketch2.addConstraint(Sketcher.Constraint("Horizontal", 31, 2, 34, 2))
sketch2.addConstraint(Sketcher.Constraint("Horizontal", 33, 2, 36, 2))
sketch2.addConstraint(Sketcher.Constraint("Horizontal", 35, 2, 38, 2))
sketch2.addConstraint(Sketcher.Constraint("Horizontal", 37, 2, 40, 2))
sketch2.addConstraint(Sketcher.Constraint("Horizontal", 39, 2, 42, 2))
sketch2.addConstraint(Sketcher.Constraint("Horizontal", 41, 2, 44, 2))
sketch2.addConstraint(Sketcher.Constraint("Horizontal", 43, 2, 46, 2))
sketch2.addConstraint(Sketcher.Constraint("Horizontal", 45, 2, 48, 2))
sketch2.addConstraint(Sketcher.Constraint("Horizontal", 47, 2, 50, 2))
sketch2.addConstraint(Sketcher.Constraint("Horizontal", 49, 2, 52, 2))
sketch2.addConstraint(Sketcher.Constraint("Horizontal", 51, 2, 54, 2))
sketch2.addConstraint(Sketcher.Constraint("Vertical", 6, 2, 28, 2))
sketch2.addConstraint(Sketcher.Constraint("Vertical", 7, 2, 29, 2))
sketch2.addConstraint(Sketcher.Constraint("Vertical", 2, 2, 32, 2))
sketch2.addConstraint(Sketcher.Constraint("Vertical", 3, 2, 33, 2))
sketch2.addConstraint(Sketcher.Constraint("Vertical", 26, 2, 36, 2))
sketch2.addConstraint(Sketcher.Constraint("Vertical", 27, 2, 37, 2))
sketch2.addConstraint(Sketcher.Constraint("Vertical", 22, 2, 40, 2))
sketch2.addConstraint(Sketcher.Constraint("Vertical", 23, 2, 41, 2))
sketch2.addConstraint(Sketcher.Constraint("Vertical", 18, 2, 44, 2))
sketch2.addConstraint(Sketcher.Constraint("Vertical", 19, 2, 45, 2))
sketch2.addConstraint(Sketcher.Constraint("Vertical", 14, 2, 48, 2))
sketch2.addConstraint(Sketcher.Constraint("Vertical", 15, 2, 49, 2))
sketch2.addConstraint(Sketcher.Constraint("Vertical", 10, 2, 52, 2))
sketch2.addConstraint(Sketcher.Constraint("Vertical", 11, 2, 53, 2))
sketch2.addConstraint(Sketcher.Constraint("Equal", 3, 5))
sketch2.addConstraint(Sketcher.Constraint("Equal", 11, 13))
sketch2.addConstraint(Sketcher.Constraint("Equal", 15, 17))
sketch2.addConstraint(Sketcher.Constraint("Equal", 19, 21))
sketch2.addConstraint(Sketcher.Constraint("Equal", 23, 25))
sketch2.addConstraint(Sketcher.Constraint("Equal", 26, 28))
sketch2.addConstraint(Sketcher.Constraint("DistanceX", 9, 2, 9, 1, Q("4 in")))
sketch2.addConstraint(Sketcher.Constraint("DistanceX", 4, 2, 1, 2, Q("68 in")))
sketch2.addConstraint(Sketcher.Constraint("DistanceX", 4, 2, 8, 2, Q("12 in")))
sketch2.addConstraint(Sketcher.Constraint("DistanceX", 8, 2, 12, 2, Q("12 in")))
sketch2.addConstraint(Sketcher.Constraint("DistanceX", 12, 2, 16, 2, Q("12 in")))
sketch2.addConstraint(Sketcher.Constraint("DistanceX", 16, 2, 20, 2, Q("12 in")))
sketch2.addConstraint(Sketcher.Constraint("DistanceX", 24, 2, 1, 2, Q("8 in")))
sketch2.addConstraint(Sketcher.Constraint("DistanceY", 28, 2, 5, 2, Q("16 in")))
sketch2.addConstraint(Sketcher.Constraint("DistanceX", 1, 2, 1, 1, Q("5.25 in")))
sketch2.addConstraint(Sketcher.Constraint("DistanceY", 0, 1, 0, 2, Q("0.75 in")))
sketch2.addConstraint(Sketcher.Constraint("DistanceX", -1, 1, 0, 2, 1434.4156))
sketch2.addConstraint(Sketcher.Constraint("DistanceY", -1, 1, 0, 2, 254.6366))
pocket1 = body.newObject("PartDesign::Pocket", "Pocket")
pocket1.Profile = sketch2
pocket1.Length = Q("0.75 in")

doc.recompute()
